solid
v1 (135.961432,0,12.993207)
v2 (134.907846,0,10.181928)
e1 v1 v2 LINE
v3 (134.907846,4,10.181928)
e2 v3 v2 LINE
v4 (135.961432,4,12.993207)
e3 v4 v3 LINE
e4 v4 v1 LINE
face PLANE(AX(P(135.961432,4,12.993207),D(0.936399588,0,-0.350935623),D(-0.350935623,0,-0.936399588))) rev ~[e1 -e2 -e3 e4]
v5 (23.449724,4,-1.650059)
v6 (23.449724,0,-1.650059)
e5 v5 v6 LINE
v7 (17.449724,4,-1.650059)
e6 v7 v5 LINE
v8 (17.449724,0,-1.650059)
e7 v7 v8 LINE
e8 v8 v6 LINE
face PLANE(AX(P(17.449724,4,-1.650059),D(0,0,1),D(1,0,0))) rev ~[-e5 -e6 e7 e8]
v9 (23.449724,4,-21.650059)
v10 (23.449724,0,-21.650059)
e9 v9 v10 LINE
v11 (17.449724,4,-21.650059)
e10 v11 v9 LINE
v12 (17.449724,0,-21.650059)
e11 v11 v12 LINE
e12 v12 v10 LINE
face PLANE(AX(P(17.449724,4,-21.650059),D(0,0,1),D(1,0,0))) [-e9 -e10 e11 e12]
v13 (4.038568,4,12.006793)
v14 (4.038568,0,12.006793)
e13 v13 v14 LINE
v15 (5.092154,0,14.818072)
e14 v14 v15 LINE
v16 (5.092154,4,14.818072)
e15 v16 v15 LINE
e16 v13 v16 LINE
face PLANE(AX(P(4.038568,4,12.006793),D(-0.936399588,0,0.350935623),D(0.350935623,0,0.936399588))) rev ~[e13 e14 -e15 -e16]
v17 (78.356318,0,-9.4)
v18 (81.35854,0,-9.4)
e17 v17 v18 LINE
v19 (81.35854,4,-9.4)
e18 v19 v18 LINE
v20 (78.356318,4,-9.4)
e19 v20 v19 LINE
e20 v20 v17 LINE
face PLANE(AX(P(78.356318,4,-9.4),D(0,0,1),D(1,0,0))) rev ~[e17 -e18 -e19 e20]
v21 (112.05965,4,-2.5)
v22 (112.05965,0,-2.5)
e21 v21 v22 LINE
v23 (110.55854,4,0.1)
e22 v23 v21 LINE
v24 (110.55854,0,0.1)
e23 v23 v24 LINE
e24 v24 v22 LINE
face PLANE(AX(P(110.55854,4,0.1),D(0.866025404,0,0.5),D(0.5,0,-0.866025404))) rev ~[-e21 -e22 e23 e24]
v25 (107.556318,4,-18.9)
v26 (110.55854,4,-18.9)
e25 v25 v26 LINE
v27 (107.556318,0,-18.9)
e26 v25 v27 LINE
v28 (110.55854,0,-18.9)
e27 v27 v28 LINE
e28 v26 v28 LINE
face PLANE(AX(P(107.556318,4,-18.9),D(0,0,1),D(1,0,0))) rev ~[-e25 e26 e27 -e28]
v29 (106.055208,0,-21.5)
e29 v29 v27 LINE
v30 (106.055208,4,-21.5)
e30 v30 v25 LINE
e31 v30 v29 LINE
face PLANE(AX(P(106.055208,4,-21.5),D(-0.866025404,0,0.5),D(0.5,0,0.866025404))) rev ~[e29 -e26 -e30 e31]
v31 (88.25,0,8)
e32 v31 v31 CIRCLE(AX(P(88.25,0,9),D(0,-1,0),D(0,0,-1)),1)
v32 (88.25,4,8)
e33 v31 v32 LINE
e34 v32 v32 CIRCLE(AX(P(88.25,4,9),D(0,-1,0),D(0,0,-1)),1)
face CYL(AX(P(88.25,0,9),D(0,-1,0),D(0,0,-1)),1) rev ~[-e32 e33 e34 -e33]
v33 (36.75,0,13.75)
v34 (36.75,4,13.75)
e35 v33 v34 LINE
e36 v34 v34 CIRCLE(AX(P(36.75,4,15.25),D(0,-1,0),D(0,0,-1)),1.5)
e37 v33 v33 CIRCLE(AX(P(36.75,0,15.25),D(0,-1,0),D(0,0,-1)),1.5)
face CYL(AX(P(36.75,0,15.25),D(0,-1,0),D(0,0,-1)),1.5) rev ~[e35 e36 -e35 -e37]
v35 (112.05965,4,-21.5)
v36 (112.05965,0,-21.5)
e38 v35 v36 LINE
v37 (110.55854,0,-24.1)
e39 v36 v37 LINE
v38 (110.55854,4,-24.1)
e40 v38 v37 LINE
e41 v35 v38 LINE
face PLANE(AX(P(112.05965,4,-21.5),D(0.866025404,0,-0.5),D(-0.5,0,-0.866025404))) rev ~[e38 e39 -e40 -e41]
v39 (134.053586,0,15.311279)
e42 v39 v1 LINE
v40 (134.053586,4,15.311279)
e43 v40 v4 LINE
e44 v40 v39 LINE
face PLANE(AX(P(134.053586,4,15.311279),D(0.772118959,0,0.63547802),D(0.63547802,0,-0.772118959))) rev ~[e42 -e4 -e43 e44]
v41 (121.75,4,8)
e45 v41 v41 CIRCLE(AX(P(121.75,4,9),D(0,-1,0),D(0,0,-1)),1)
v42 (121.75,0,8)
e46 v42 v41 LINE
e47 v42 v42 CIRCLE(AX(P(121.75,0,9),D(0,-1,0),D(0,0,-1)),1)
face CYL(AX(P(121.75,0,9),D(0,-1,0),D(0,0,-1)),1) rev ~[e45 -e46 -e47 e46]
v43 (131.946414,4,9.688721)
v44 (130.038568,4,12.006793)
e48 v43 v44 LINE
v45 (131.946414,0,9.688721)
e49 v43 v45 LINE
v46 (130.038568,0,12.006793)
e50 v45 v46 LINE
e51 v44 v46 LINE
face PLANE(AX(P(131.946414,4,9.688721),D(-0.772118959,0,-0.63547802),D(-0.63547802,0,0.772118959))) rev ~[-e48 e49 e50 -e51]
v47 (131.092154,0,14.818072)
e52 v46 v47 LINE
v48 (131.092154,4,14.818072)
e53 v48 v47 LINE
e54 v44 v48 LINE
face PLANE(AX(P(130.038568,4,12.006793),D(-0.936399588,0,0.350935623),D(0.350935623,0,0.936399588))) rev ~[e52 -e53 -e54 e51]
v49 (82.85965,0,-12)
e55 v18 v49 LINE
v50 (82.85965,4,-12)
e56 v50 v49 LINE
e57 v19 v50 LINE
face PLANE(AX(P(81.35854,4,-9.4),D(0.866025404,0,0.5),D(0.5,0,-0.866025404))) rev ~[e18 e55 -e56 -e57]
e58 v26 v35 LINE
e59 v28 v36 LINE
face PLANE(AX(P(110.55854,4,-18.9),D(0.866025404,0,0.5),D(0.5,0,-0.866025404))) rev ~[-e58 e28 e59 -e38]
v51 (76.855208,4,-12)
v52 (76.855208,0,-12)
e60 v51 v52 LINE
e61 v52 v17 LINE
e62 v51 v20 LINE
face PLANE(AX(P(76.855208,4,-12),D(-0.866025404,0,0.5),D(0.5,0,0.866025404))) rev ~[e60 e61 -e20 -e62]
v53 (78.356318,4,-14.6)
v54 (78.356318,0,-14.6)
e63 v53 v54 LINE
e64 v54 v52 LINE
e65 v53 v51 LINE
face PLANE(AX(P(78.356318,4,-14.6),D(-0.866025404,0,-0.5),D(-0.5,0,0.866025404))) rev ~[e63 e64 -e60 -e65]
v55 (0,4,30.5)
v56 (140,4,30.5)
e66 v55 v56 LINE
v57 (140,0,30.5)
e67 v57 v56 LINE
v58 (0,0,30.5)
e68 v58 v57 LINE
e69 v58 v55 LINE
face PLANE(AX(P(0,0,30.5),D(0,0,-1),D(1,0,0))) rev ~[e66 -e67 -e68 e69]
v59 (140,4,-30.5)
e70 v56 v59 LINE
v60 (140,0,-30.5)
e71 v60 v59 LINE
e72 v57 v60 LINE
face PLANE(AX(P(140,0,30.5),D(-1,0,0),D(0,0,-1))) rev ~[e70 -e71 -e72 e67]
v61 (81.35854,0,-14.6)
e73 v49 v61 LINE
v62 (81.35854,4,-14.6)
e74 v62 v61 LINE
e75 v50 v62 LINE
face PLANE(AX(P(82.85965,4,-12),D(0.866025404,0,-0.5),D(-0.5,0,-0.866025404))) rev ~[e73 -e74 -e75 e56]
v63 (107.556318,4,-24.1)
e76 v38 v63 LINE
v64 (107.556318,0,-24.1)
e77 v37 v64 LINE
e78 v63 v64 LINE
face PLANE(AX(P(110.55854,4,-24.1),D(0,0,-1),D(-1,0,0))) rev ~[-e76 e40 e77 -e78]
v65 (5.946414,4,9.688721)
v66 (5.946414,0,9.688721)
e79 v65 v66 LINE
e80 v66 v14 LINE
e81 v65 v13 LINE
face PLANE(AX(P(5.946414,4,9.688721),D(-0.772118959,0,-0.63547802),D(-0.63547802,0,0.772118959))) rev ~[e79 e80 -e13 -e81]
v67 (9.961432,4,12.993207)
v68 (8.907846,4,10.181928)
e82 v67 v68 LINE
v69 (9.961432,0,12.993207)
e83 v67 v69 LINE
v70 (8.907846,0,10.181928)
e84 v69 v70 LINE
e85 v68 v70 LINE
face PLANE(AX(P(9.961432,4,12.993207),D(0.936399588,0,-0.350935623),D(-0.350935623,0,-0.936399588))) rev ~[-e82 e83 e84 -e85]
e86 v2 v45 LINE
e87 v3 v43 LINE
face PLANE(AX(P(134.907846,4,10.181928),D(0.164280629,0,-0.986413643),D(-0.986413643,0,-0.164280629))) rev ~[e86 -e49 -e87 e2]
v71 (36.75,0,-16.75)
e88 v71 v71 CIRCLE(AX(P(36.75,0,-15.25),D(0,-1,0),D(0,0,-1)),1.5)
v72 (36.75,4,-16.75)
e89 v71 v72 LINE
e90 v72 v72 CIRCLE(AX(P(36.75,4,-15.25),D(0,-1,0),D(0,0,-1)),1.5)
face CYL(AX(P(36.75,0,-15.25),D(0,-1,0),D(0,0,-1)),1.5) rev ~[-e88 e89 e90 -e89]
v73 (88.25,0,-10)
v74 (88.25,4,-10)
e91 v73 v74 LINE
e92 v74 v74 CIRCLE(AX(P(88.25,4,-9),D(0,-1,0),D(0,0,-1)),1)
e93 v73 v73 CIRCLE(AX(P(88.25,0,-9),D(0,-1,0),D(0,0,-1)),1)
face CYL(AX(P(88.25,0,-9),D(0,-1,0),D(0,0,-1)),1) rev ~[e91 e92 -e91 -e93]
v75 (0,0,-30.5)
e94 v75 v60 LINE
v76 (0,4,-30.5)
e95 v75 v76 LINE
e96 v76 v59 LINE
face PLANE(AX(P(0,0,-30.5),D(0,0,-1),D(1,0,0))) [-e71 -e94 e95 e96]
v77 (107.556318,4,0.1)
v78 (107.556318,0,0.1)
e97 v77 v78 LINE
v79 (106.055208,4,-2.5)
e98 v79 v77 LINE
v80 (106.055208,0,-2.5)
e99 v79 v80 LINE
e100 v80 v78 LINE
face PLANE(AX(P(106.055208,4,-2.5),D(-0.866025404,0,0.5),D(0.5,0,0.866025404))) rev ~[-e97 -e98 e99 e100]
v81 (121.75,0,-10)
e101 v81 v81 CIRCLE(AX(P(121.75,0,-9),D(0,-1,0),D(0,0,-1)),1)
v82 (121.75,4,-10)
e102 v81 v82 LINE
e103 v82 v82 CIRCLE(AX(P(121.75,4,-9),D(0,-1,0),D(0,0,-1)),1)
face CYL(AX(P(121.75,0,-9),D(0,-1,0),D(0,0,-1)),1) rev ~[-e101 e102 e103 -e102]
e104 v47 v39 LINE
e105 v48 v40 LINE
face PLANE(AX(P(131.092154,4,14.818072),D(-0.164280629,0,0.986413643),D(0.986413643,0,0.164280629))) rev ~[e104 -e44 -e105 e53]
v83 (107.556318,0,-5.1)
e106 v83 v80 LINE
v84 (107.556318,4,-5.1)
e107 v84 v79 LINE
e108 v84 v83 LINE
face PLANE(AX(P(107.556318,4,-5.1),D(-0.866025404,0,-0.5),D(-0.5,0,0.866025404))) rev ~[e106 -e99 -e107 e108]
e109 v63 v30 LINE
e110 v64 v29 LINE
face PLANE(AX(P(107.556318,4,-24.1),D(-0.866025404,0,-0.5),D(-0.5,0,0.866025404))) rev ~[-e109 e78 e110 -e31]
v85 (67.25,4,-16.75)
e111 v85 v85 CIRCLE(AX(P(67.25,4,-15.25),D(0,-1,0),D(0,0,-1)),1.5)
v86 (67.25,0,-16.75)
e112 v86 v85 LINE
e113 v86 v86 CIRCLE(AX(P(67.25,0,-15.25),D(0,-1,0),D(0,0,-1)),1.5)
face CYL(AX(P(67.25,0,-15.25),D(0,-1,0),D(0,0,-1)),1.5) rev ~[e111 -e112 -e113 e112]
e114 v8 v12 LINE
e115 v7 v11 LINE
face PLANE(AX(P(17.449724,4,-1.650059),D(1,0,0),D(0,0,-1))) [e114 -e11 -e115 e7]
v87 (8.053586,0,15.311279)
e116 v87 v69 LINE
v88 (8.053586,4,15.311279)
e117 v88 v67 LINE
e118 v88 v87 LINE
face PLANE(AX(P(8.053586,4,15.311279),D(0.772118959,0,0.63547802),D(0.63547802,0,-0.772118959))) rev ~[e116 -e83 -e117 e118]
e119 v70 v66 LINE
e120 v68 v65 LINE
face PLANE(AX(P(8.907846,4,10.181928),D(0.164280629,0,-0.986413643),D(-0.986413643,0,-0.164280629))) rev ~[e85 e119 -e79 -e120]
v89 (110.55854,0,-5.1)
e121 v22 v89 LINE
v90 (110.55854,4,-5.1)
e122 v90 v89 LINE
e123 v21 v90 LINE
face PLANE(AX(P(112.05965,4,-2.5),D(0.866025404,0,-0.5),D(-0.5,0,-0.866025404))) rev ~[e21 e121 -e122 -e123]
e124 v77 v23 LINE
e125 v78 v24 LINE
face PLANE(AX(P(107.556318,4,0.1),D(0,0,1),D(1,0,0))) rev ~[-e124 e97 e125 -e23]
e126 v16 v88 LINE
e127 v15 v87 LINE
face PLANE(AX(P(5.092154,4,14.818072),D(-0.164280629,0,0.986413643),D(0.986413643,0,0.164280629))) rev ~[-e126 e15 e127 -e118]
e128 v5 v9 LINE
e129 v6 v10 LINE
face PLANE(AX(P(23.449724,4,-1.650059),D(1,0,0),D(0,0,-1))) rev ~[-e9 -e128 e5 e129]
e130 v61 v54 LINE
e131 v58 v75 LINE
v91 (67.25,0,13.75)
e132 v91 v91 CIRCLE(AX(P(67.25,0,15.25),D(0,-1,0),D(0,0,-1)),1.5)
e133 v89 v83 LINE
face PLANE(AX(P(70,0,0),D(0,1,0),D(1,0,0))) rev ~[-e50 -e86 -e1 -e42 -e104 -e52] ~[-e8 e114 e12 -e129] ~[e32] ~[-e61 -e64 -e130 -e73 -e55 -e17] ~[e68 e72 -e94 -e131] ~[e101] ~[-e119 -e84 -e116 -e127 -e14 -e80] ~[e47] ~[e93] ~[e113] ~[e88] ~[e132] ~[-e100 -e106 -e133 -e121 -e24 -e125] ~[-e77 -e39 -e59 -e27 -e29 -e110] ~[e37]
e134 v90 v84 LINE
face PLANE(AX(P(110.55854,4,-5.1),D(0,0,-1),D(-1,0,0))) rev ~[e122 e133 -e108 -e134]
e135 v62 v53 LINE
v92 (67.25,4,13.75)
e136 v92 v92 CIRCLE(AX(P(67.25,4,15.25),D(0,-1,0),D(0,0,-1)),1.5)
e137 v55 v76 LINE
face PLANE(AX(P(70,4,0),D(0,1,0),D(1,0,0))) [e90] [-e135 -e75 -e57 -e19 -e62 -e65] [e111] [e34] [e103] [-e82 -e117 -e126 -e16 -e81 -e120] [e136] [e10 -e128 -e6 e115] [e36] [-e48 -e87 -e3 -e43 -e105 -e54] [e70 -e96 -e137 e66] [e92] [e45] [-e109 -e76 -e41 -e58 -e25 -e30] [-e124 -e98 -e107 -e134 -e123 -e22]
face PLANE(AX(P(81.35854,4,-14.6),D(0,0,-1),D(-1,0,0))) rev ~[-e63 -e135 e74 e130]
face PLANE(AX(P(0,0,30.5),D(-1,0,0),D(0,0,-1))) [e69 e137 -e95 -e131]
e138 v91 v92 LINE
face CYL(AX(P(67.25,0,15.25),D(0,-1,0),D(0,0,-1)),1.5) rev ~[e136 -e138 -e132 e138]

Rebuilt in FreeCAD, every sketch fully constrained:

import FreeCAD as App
import Part
import Sketcher

V = App.Vector
Q = App.Units.Quantity


def add_polygon(sketch, points):
    """Adds a closed chain of lines whose ends are joined by coincident constraints."""
    first, n = sketch.GeometryCount, len(points)
    for a, b in zip(points, points[1:] + points[:1]):
        sketch.addGeometry(Part.LineSegment(App.Vector(*a, 0), App.Vector(*b, 0)), False)
    for i in range(n):
        sketch.addConstraint(Sketcher.Constraint("Coincident", first + i, 2, first + (i + 1) % n, 1))

doc = App.newDocument("Part")
body = doc.addObject("PartDesign::Body", "Body")

sketch1 = body.newObject("Sketcher::SketchObject", "Sketch")
sketch1.AttachmentSupport = (doc.getObject("XZ_Plane"), [""])
sketch1.MapMode = "FlatFace"
add_polygon(sketch1, [(0, -30), (0, 30), (140, 30), (140, -30)])
sketch1.addConstraint([
    Sketcher.Constraint("Vertical", 0),
    Sketcher.Constraint("Horizontal", 1),
    Sketcher.Constraint("Vertical", 2),
    Sketcher.Constraint("Horizontal", 3),
    Sketcher.Constraint("Symmetric", 0, 2, 3, 2, -1, 1),
    Sketcher.Constraint("DistanceX", 1, 1, 1, 2, Q("140 mm")),
    Sketcher.Constraint("DistanceY", 0, 1, 0, 2, Q("61 mm")),
])
pad1 = body.newObject("PartDesign::Pad", "Pad")
pad1.Profile = sketch1
pad1.Length = 4
pad1.Reversed = True

sketch2 = body.newObject("Sketcher::SketchObject", "Sketch001")
sketch2.AttachmentSupport = (doc.getObject("XZ_Plane"), [""])
sketch2.MapMode = "FlatFace"
sketch2.AttachmentOffset = App.Placement(V(0, 0, -4), App.Rotation())
add_polygon(sketch2, [(17, -22), (17, -2), (23, -2), (23, -22)])
sketch2.addConstraint([
    Sketcher.Constraint("Vertical", 0),
    Sketcher.Constraint("Horizontal", 1),
    Sketcher.Constraint("Vertical", 2),
    Sketcher.Constraint("Horizontal", 3),
    Sketcher.Constraint("DistanceX", 1, 1, 1, 2, Q("6 mm")),
    Sketcher.Constraint("DistanceY", 0, 1, 0, 2, Q("20 mm")),
    Sketcher.Constraint("DistanceY", 0, 2, -1, 1, Q("1.650059 mm")),
    Sketcher.Constraint("DistanceX", -1, 1, 0, 2, Q("17.449724 mm")),
])
pocket1 = body.newObject("PartDesign::Pocket", "Pocket")
pocket1.Profile = sketch2
pocket1.Length = 10
pocket1.Reversed = True

sketch3 = body.newObject("Sketcher::SketchObject", "Sketch002")
sketch3.AttachmentSupport = (doc.getObject("XZ_Plane"), [""])
sketch3.MapMode = "FlatFace"
sketch3.addGeometry([
    Part.Circle(V(88.2, -9, 0), V(0, 0, 1), 1),
    Part.Circle(V(88.2, 9, 0), V(0, 0, 1), 1),
    Part.Circle(V(121.8, -9, 0), V(0, 0, 1), 1),
    Part.Circle(V(121.8, 9, 0), V(0, 0, 1), 1),
    Part.Circle(V(36.8, 15.2, 0), V(0, 0, 1), 1.5),
    Part.Circle(V(67.2, 15.2, 0), V(0, 0, 1), 1.5),
    Part.Circle(V(67.2, -15.2, 0), V(0, 0, 1), 1.5),
    Part.Circle(V(36.8, -15.2, 0), V(0, 0, 1), 1.5),
], False)
sketch3.addConstraint([
    Sketcher.Constraint("Equal", 0, 1),
    Sketcher.Constraint("Equal", 1, 2),
    Sketcher.Constraint("Equal", 2, 3),
    Sketcher.Constraint("Equal", 4, 5),
    Sketcher.Constraint("Equal", 5, 6),
    Sketcher.Constraint("Equal", 6, 7),
    Sketcher.Constraint("Symmetric", 0, 3, 1, 3, -1),
    Sketcher.Constraint("Symmetric", 2, 3, 3, 3, -1),
    Sketcher.Constraint("Symmetric", 5, 3, 6, 3, -1),
    Sketcher.Constraint("Symmetric", 4, 3, 7, 3, -1),
    Sketcher.Constraint("Horizontal", 0, 3, 2, 3),
    Sketcher.Constraint("Horizontal", 4, 3, 5, 3),
    Sketcher.Constraint("Diameter", 0, Q("2 mm")),
    Sketcher.Constraint("Diameter", 4, Q("3 mm")),
    Sketcher.Constraint("DistanceY", 0, 3, -1, 1, Q("9 mm")),
    Sketcher.Constraint("DistanceX", 4, 3, 3, 3, Q("85 mm")),
    Sketcher.Constraint("DistanceX", 5, 3, 1, 3, Q("21 mm")),
    Sketcher.Constraint("DistanceX", 0, 3, 2, 3, Q("33.5 mm")),
    Sketcher.Constraint("DistanceY", 6, 3, 5, 3, Q("30.5 mm")),
    Sketcher.Constraint("DistanceX", -1, 1, 0, 3, Q("88.25 mm")),
])
pocket2 = body.newObject("PartDesign::Pocket", "Pocket001")
pocket2.Profile = sketch3
pocket2.Length = 4

sketch4 = body.newObject("Sketcher::SketchObject", "Sketch003")
sketch4.AttachmentSupport = (doc.getObject("XZ_Plane"), [""])
sketch4.MapMode = "FlatFace"
sketch4.AttachmentOffset = App.Placement(V(0, 0, -4), App.Rotation())
add_polygon(sketch4, [(81.4, -14.6), (78.4, -14.6), (76.9, -12), (78.4, -9.4), (81.4, -9.4), (82.9, -12)])
add_polygon(sketch4, [(110.6, -5.1), (107.6, -5.1), (106.1, -2.5), (107.6, 0.1), (110.6, 0.1), (112.1, -2.5)])
add_polygon(sketch4, [(112.1, -21.5), (110.6, -24.1), (107.6, -24.1), (106.1, -21.5), (107.6, -18.9), (110.6, -18.9)])
sketch4.addConstraint([
    Sketcher.Constraint("Horizontal", 0),
    Sketcher.Constraint("Horizontal", 3),
    Sketcher.Constraint("Horizontal", 6),
    Sketcher.Constraint("Horizontal", 9),
    Sketcher.Constraint("Horizontal", 13),
    Sketcher.Constraint("Horizontal", 16),
    Sketcher.Constraint("Parallel", 1, 4),
    Sketcher.Constraint("Parallel", 2, 5),
    Sketcher.Constraint("Parallel", 4, 7),
    Sketcher.Constraint("Parallel", 5, 8),
    Sketcher.Constraint("Parallel", 7, 10),
    Sketcher.Constraint("Parallel", 8, 11),
    Sketcher.Constraint("Parallel", 11, 12),
    Sketcher.Constraint("Parallel", 10, 14),
    Sketcher.Constraint("Parallel", 12, 15),
    Sketcher.Constraint("Parallel", 14, 17),
    Sketcher.Constraint("Horizontal", 1, 2, 4, 2),
    Sketcher.Constraint("Horizontal", 7, 2, 10, 2),
    Sketcher.Constraint("Horizontal", 14, 2, 17, 2),
    Sketcher.Constraint("Vertical", 0, 2, 2, 2),
    Sketcher.Constraint("Vertical", 3, 2, 5, 2),
    Sketcher.Constraint("Vertical", 6, 2, 8, 2),
    Sketcher.Constraint("Vertical", 11, 2, 12, 2),
    Sketcher.Constraint("Vertical", 8, 2, 13, 2),
    Sketcher.Constraint("Vertical", 7, 2, 14, 2),
    Sketcher.Constraint("Vertical", 13, 2, 15, 2),
    Sketcher.Constraint("Equal", 3, 6),
    Sketcher.Constraint("Equal", 5, 7),
    Sketcher.Constraint("Angle", 1, Q("120 deg")),
    Sketcher.Constraint("DistanceY", 1, 2, -1, 1, Q("12 mm")),
    Sketcher.Constraint("DistanceY", 12, 2, 11, 2, Q("19 mm")),
    Sketcher.Constraint("DistanceY", 0, 2, -1, 1, Q("14.6 mm")),
    Sketcher.Constraint("DistanceY", 6, 2, -1, 1, Q("5.1 mm")),
    Sketcher.Constraint("DistanceX", 2, 2, 6, 2, Q("29.2 mm")),
    Sketcher.Constraint("DistanceX", 0, 2, 0, 1, Q("3.002221 mm")),
    Sketcher.Constraint("DistanceX", -1, 1, 0, 2, Q("78.356318 mm")),
])
pocket3 = body.newObject("PartDesign::Pocket", "Pocket002")
pocket3.Profile = sketch4
pocket3.Length = 34
pocket3.Reversed = True

sketch5 = body.newObject("Sketcher::SketchObject", "Sketch004")
sketch5.AttachmentSupport = (doc.getObject("XZ_Plane"), [""])
sketch5.MapMode = "FlatFace"
sketch5.AttachmentOffset = App.Placement(V(0, 0, -4), App.Rotation())
add_polygon(sketch5, [(10, 13), (8.9, 10.2), (5.9, 9.7), (4, 12), (5.1, 14.8), (8.1, 15.3)])
add_polygon(sketch5, [(136, 13), (134.9, 10.2), (131.9, 9.7), (130, 12), (131.1, 14.8), (134.1, 15.3)])
sketch5.addConstraint([
    Sketcher.Constraint("Parallel", 0, 3),
    Sketcher.Constraint("Parallel", 1, 4),
    Sketcher.Constraint("Parallel", 2, 5),
    Sketcher.Constraint("Parallel", 3, 6),
    Sketcher.Constraint("Parallel", 4, 7),
    Sketcher.Constraint("Parallel", 5, 8),
    Sketcher.Constraint("Parallel", 6, 9),
    Sketcher.Constraint("Parallel", 7, 10),
    Sketcher.Constraint("Parallel", 8, 11),
    Sketcher.Constraint("Horizontal", 0, 2, 6, 2),
    Sketcher.Constraint("Horizontal", 1, 2, 7, 2),
    Sketcher.Constraint("Horizontal", 2, 2, 8, 2),
    Sketcher.Constraint("Horizontal", 3, 2, 9, 2),
    Sketcher.Constraint("Horizontal", 4, 2, 10, 2),
    Sketcher.Constraint("Equal", 0, 1),
    Sketcher.Constraint("Equal", 1, 2),
    Sketcher.Constraint("Equal", 2, 3),
    Sketcher.Constraint("DistanceX", 0, 2, 6, 2, Q("126 mm")),
    Sketcher.Constraint("Distance", 0, Q("3.002221 mm")),
    Sketcher.Constraint("DistanceY", -1, 1, 1, 2, Q("9.688721 mm")),
    Sketcher.Constraint("DistanceY", -1, 1, 4, 2, Q("15.311279 mm")),
    Sketcher.Constraint("DistanceY", 2, 2, 3, 2, Q("2.811279 mm")),
    Sketcher.Constraint("DistanceX", 3, 2, 1, 2, Q("0.854259 mm")),
    Sketcher.Constraint("DistanceX", -1, 1, 0, 2, Q("8.907846 mm")),
])
pocket4 = body.newObject("PartDesign::Pocket", "Pocket003")
pocket4.Profile = sketch5
pocket4.Length = 10
pocket4.Reversed = True

doc.recompute()
